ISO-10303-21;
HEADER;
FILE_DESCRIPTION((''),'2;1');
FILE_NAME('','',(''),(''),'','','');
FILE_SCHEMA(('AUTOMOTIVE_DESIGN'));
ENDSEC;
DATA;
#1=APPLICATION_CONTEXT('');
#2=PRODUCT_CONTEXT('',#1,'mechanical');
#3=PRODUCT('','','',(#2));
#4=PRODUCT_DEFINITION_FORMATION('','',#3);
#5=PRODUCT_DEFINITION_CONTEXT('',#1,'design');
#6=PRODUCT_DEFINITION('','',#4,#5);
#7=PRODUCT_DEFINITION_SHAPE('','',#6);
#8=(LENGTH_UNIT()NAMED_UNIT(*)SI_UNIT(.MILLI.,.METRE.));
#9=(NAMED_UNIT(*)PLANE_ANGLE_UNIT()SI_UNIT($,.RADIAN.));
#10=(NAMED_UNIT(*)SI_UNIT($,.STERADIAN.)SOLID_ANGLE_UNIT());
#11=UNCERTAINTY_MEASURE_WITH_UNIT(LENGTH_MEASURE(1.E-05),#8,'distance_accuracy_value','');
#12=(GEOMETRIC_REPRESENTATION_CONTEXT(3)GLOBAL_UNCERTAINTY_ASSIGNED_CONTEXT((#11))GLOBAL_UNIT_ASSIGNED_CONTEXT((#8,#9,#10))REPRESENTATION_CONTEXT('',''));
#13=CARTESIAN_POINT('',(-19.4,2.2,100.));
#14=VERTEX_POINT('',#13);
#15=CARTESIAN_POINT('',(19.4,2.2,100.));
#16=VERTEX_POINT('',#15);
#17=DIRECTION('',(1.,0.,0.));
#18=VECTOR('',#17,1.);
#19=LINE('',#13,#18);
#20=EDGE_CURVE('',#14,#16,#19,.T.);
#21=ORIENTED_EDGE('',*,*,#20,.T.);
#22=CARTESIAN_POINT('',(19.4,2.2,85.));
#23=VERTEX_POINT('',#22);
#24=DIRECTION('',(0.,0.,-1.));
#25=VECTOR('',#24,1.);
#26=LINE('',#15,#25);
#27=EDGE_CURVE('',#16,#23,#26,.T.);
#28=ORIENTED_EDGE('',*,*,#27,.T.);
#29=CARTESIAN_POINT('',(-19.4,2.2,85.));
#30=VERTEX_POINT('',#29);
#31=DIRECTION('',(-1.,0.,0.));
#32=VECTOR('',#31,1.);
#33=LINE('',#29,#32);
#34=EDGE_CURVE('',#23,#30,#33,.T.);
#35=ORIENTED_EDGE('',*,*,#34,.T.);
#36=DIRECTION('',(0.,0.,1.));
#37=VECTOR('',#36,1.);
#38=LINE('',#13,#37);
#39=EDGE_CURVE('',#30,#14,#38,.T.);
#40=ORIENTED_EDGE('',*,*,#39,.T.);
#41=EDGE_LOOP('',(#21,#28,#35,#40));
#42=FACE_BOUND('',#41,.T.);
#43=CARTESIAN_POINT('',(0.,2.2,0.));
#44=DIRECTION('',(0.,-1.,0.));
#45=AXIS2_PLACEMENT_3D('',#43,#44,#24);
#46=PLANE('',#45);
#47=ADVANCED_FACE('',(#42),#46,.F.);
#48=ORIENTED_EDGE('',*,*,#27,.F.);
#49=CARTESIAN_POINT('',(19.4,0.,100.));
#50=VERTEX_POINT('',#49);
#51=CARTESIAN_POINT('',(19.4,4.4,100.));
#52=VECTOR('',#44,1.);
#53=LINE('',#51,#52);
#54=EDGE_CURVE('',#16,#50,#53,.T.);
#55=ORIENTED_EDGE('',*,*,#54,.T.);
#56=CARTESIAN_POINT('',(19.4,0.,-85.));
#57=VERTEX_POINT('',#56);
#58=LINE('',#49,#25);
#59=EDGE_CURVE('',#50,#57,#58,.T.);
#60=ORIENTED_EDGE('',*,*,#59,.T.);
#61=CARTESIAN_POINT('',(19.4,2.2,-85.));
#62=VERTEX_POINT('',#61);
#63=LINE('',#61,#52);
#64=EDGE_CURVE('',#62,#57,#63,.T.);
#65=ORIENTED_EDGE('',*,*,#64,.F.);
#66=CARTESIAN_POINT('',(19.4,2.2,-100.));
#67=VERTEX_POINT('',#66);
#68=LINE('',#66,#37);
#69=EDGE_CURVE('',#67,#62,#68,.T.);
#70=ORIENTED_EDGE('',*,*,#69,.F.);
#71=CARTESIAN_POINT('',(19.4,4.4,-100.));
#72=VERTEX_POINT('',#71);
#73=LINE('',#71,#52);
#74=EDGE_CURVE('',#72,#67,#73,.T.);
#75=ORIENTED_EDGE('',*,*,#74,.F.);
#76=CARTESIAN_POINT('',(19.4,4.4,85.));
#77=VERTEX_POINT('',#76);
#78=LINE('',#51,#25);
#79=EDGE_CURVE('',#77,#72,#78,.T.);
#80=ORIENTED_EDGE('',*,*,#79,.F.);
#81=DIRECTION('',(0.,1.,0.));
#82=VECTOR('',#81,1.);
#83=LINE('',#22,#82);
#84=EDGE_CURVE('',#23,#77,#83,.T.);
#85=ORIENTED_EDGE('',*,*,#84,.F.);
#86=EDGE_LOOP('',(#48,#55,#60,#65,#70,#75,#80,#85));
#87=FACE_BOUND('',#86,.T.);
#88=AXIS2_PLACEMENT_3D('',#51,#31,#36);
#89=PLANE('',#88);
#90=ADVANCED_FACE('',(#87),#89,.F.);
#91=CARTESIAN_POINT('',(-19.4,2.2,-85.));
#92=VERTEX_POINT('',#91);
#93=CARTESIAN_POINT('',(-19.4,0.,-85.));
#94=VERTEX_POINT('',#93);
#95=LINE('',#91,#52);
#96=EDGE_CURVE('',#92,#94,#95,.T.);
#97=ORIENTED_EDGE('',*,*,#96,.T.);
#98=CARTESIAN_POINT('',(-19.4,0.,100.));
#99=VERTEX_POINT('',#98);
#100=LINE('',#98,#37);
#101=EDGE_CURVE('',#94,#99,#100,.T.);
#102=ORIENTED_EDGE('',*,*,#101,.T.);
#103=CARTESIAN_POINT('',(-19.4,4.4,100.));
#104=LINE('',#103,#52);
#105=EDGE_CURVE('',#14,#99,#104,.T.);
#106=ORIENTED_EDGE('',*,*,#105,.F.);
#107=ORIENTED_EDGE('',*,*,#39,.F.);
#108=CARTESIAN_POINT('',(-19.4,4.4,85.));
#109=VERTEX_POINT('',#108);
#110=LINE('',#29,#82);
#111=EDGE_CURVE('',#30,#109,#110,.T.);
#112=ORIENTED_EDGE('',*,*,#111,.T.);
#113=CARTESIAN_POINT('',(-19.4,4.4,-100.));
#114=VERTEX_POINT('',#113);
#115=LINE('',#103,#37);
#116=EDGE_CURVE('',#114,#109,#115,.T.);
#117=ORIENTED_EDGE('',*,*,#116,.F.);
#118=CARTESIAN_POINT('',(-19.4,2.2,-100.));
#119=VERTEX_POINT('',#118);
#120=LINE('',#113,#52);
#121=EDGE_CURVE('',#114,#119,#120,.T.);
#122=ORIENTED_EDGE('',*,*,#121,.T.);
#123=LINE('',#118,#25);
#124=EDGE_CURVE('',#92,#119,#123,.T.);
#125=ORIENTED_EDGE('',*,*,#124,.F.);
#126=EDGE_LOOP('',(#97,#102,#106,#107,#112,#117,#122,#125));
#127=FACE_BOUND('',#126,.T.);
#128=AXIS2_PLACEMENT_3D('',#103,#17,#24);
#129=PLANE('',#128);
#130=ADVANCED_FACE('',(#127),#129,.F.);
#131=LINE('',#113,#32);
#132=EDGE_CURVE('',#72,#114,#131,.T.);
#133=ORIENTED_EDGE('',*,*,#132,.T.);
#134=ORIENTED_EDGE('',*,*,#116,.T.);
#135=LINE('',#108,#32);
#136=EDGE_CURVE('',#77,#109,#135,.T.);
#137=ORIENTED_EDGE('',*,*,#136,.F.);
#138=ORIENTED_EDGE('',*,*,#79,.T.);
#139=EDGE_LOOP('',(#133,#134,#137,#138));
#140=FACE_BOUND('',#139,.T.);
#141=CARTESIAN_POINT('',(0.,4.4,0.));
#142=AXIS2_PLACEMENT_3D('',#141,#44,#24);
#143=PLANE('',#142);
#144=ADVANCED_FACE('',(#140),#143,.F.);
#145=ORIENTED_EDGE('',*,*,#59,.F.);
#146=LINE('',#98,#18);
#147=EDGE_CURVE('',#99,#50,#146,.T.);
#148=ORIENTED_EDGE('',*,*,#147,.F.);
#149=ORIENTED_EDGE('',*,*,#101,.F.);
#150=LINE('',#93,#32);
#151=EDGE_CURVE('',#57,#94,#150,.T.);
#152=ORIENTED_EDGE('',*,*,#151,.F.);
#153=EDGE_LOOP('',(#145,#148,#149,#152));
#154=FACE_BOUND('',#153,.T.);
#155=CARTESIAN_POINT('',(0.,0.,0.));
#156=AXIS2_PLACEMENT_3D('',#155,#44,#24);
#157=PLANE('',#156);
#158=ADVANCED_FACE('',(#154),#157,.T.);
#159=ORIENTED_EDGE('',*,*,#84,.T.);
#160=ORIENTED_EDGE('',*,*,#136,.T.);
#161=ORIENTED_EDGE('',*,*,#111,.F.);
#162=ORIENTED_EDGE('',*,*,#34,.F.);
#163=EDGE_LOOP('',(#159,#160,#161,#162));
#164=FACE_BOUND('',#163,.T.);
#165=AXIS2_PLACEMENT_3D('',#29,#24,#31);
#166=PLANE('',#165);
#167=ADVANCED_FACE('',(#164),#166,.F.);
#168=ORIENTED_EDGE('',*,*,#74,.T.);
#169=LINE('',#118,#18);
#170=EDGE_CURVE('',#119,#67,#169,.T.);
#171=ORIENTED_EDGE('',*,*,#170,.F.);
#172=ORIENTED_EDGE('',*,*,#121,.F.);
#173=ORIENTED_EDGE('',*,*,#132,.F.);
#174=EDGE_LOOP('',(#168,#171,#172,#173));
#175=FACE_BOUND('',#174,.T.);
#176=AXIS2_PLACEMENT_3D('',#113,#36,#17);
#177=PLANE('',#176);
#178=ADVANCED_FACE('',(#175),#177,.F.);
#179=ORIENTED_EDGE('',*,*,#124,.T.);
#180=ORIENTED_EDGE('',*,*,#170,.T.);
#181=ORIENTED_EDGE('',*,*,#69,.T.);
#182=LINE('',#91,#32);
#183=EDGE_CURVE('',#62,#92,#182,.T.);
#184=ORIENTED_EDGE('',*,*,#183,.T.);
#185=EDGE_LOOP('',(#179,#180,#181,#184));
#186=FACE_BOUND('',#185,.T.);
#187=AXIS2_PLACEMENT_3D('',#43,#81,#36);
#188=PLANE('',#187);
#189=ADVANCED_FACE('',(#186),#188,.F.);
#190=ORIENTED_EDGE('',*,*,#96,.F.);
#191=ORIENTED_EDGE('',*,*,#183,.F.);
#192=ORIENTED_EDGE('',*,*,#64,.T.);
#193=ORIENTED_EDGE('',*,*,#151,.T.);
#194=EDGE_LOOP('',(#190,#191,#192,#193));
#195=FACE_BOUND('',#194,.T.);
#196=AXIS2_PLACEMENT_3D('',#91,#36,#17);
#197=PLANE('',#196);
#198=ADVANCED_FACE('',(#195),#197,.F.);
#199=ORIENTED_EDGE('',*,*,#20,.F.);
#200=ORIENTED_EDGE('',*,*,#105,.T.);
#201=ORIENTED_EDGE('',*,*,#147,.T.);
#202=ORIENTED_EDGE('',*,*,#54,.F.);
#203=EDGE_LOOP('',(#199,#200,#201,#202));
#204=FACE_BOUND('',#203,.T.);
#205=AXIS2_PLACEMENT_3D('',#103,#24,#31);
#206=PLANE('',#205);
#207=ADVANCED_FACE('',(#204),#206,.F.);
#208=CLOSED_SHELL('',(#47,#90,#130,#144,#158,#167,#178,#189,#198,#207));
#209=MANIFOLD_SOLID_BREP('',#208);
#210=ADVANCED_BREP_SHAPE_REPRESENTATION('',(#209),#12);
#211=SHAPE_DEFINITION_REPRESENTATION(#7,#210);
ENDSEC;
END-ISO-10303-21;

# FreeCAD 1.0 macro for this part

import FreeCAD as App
import Part
import Sketcher

V = App.Vector


def add_polygon(sketch, points):
    """Adds a closed chain of lines whose ends are joined by coincident constraints."""
    first, n = sketch.GeometryCount, len(points)
    for a, b in zip(points, points[1:] + points[:1]):
        sketch.addGeometry(Part.LineSegment(App.Vector(*a, 0), App.Vector(*b, 0)), False)
    for i in range(n):
        sketch.addConstraint(Sketcher.Constraint("Coincident", first + i, 2, first + (i + 1) % n, 1))

doc = App.newDocument("Part")
body = doc.addObject("PartDesign::Body", "Body")

sketch1 = body.newObject("Sketcher::SketchObject", "Sketch")
sketch1.AttachmentSupport = (doc.getObject("XZ_Plane"), [""])
sketch1.MapMode = "FlatFace"
add_polygon(sketch1, [(-19.4, -100), (-19.4, 100), (19.4, 100), (19.4, -100)])
sketch1.addConstraint([
    Sketcher.Constraint("Vertical", 0),
    Sketcher.Constraint("Horizontal", 1),
    Sketcher.Constraint("Vertical", 2),
    Sketcher.Constraint("Horizontal", 3),
    Sketcher.Constraint("Symmetric", 0, 2, 2, 2, -1, 1),
    Sketcher.Constraint("DistanceY", 0, 1, 0, 2, 200.0),
    Sketcher.Constraint("DistanceX", 1, 1, 1, 2, 38.8),
])
pad1 = body.newObject("PartDesign::Pad", "Pad")
pad1.Profile = sketch1
pad1.Length = 4.4
pad1.Reversed = True

sketch2 = body.newObject("Sketcher::SketchObject", "Sketch001")
sketch2.AttachmentSupport = (doc.getObject("XZ_Plane"), [""])
sketch2.MapMode = "FlatFace"
sketch2.AttachmentOffset = App.Placement(V(0, 0, -4.4), App.Rotation())
add_polygon(sketch2, [(-19.4, 85), (-19.4, 100), (19.4, 100), (19.4, 85)])
sketch2.addConstraint([
    Sketcher.Constraint("Vertical", 0),
    Sketcher.Constraint("Horizontal", 1),
    Sketcher.Constraint("Vertical", 2),
    Sketcher.Constraint("Horizontal", 3),
    Sketcher.Constraint("DistanceY", 0, 1, 0, 2, 15.0),
    Sketcher.Constraint("DistanceX", 1, 1, 1, 2, 38.8),
    Sketcher.Constraint("DistanceY", -1, 1, 0, 2, 100.0),
    Sketcher.Constraint("DistanceX", 0, 2, -1, 1, 19.4),
])
pocket1 = body.newObject("PartDesign::Pocket", "Pocket")
pocket1.Profile = sketch2
pocket1.Length = 2.2
pocket1.Reversed = True

sketch3 = body.newObject("Sketcher::SketchObject", "Sketch002")
sketch3.AttachmentSupport = (doc.getObject("XZ_Plane"), [""])
sketch3.MapMode = "FlatFace"
add_polygon(sketch3, [(-19.4, -85), (-19.4, -100), (19.4, -100), (19.4, -85)])
sketch3.addConstraint([
    Sketcher.Constraint("Vertical", 0),
    Sketcher.Constraint("Horizontal", 1),
    Sketcher.Constraint("Vertical", 2),
    Sketcher.Constraint("Horizontal", 3),
    Sketcher.Constraint("DistanceY", 0, 2, 0, 1, 15.0),
    Sketcher.Constraint("DistanceX", 1, 1, 1, 2, 38.8),
    Sketcher.Constraint("DistanceY", 0, 2, -1, 1, 100.0),
    Sketcher.Constraint("DistanceX", 0, 2, -1, 1, 19.4),
])
pocket2 = body.newObject("PartDesign::Pocket", "Pocket001")
pocket2.Profile = sketch3
pocket2.Length = 2.2

doc.recompute()
